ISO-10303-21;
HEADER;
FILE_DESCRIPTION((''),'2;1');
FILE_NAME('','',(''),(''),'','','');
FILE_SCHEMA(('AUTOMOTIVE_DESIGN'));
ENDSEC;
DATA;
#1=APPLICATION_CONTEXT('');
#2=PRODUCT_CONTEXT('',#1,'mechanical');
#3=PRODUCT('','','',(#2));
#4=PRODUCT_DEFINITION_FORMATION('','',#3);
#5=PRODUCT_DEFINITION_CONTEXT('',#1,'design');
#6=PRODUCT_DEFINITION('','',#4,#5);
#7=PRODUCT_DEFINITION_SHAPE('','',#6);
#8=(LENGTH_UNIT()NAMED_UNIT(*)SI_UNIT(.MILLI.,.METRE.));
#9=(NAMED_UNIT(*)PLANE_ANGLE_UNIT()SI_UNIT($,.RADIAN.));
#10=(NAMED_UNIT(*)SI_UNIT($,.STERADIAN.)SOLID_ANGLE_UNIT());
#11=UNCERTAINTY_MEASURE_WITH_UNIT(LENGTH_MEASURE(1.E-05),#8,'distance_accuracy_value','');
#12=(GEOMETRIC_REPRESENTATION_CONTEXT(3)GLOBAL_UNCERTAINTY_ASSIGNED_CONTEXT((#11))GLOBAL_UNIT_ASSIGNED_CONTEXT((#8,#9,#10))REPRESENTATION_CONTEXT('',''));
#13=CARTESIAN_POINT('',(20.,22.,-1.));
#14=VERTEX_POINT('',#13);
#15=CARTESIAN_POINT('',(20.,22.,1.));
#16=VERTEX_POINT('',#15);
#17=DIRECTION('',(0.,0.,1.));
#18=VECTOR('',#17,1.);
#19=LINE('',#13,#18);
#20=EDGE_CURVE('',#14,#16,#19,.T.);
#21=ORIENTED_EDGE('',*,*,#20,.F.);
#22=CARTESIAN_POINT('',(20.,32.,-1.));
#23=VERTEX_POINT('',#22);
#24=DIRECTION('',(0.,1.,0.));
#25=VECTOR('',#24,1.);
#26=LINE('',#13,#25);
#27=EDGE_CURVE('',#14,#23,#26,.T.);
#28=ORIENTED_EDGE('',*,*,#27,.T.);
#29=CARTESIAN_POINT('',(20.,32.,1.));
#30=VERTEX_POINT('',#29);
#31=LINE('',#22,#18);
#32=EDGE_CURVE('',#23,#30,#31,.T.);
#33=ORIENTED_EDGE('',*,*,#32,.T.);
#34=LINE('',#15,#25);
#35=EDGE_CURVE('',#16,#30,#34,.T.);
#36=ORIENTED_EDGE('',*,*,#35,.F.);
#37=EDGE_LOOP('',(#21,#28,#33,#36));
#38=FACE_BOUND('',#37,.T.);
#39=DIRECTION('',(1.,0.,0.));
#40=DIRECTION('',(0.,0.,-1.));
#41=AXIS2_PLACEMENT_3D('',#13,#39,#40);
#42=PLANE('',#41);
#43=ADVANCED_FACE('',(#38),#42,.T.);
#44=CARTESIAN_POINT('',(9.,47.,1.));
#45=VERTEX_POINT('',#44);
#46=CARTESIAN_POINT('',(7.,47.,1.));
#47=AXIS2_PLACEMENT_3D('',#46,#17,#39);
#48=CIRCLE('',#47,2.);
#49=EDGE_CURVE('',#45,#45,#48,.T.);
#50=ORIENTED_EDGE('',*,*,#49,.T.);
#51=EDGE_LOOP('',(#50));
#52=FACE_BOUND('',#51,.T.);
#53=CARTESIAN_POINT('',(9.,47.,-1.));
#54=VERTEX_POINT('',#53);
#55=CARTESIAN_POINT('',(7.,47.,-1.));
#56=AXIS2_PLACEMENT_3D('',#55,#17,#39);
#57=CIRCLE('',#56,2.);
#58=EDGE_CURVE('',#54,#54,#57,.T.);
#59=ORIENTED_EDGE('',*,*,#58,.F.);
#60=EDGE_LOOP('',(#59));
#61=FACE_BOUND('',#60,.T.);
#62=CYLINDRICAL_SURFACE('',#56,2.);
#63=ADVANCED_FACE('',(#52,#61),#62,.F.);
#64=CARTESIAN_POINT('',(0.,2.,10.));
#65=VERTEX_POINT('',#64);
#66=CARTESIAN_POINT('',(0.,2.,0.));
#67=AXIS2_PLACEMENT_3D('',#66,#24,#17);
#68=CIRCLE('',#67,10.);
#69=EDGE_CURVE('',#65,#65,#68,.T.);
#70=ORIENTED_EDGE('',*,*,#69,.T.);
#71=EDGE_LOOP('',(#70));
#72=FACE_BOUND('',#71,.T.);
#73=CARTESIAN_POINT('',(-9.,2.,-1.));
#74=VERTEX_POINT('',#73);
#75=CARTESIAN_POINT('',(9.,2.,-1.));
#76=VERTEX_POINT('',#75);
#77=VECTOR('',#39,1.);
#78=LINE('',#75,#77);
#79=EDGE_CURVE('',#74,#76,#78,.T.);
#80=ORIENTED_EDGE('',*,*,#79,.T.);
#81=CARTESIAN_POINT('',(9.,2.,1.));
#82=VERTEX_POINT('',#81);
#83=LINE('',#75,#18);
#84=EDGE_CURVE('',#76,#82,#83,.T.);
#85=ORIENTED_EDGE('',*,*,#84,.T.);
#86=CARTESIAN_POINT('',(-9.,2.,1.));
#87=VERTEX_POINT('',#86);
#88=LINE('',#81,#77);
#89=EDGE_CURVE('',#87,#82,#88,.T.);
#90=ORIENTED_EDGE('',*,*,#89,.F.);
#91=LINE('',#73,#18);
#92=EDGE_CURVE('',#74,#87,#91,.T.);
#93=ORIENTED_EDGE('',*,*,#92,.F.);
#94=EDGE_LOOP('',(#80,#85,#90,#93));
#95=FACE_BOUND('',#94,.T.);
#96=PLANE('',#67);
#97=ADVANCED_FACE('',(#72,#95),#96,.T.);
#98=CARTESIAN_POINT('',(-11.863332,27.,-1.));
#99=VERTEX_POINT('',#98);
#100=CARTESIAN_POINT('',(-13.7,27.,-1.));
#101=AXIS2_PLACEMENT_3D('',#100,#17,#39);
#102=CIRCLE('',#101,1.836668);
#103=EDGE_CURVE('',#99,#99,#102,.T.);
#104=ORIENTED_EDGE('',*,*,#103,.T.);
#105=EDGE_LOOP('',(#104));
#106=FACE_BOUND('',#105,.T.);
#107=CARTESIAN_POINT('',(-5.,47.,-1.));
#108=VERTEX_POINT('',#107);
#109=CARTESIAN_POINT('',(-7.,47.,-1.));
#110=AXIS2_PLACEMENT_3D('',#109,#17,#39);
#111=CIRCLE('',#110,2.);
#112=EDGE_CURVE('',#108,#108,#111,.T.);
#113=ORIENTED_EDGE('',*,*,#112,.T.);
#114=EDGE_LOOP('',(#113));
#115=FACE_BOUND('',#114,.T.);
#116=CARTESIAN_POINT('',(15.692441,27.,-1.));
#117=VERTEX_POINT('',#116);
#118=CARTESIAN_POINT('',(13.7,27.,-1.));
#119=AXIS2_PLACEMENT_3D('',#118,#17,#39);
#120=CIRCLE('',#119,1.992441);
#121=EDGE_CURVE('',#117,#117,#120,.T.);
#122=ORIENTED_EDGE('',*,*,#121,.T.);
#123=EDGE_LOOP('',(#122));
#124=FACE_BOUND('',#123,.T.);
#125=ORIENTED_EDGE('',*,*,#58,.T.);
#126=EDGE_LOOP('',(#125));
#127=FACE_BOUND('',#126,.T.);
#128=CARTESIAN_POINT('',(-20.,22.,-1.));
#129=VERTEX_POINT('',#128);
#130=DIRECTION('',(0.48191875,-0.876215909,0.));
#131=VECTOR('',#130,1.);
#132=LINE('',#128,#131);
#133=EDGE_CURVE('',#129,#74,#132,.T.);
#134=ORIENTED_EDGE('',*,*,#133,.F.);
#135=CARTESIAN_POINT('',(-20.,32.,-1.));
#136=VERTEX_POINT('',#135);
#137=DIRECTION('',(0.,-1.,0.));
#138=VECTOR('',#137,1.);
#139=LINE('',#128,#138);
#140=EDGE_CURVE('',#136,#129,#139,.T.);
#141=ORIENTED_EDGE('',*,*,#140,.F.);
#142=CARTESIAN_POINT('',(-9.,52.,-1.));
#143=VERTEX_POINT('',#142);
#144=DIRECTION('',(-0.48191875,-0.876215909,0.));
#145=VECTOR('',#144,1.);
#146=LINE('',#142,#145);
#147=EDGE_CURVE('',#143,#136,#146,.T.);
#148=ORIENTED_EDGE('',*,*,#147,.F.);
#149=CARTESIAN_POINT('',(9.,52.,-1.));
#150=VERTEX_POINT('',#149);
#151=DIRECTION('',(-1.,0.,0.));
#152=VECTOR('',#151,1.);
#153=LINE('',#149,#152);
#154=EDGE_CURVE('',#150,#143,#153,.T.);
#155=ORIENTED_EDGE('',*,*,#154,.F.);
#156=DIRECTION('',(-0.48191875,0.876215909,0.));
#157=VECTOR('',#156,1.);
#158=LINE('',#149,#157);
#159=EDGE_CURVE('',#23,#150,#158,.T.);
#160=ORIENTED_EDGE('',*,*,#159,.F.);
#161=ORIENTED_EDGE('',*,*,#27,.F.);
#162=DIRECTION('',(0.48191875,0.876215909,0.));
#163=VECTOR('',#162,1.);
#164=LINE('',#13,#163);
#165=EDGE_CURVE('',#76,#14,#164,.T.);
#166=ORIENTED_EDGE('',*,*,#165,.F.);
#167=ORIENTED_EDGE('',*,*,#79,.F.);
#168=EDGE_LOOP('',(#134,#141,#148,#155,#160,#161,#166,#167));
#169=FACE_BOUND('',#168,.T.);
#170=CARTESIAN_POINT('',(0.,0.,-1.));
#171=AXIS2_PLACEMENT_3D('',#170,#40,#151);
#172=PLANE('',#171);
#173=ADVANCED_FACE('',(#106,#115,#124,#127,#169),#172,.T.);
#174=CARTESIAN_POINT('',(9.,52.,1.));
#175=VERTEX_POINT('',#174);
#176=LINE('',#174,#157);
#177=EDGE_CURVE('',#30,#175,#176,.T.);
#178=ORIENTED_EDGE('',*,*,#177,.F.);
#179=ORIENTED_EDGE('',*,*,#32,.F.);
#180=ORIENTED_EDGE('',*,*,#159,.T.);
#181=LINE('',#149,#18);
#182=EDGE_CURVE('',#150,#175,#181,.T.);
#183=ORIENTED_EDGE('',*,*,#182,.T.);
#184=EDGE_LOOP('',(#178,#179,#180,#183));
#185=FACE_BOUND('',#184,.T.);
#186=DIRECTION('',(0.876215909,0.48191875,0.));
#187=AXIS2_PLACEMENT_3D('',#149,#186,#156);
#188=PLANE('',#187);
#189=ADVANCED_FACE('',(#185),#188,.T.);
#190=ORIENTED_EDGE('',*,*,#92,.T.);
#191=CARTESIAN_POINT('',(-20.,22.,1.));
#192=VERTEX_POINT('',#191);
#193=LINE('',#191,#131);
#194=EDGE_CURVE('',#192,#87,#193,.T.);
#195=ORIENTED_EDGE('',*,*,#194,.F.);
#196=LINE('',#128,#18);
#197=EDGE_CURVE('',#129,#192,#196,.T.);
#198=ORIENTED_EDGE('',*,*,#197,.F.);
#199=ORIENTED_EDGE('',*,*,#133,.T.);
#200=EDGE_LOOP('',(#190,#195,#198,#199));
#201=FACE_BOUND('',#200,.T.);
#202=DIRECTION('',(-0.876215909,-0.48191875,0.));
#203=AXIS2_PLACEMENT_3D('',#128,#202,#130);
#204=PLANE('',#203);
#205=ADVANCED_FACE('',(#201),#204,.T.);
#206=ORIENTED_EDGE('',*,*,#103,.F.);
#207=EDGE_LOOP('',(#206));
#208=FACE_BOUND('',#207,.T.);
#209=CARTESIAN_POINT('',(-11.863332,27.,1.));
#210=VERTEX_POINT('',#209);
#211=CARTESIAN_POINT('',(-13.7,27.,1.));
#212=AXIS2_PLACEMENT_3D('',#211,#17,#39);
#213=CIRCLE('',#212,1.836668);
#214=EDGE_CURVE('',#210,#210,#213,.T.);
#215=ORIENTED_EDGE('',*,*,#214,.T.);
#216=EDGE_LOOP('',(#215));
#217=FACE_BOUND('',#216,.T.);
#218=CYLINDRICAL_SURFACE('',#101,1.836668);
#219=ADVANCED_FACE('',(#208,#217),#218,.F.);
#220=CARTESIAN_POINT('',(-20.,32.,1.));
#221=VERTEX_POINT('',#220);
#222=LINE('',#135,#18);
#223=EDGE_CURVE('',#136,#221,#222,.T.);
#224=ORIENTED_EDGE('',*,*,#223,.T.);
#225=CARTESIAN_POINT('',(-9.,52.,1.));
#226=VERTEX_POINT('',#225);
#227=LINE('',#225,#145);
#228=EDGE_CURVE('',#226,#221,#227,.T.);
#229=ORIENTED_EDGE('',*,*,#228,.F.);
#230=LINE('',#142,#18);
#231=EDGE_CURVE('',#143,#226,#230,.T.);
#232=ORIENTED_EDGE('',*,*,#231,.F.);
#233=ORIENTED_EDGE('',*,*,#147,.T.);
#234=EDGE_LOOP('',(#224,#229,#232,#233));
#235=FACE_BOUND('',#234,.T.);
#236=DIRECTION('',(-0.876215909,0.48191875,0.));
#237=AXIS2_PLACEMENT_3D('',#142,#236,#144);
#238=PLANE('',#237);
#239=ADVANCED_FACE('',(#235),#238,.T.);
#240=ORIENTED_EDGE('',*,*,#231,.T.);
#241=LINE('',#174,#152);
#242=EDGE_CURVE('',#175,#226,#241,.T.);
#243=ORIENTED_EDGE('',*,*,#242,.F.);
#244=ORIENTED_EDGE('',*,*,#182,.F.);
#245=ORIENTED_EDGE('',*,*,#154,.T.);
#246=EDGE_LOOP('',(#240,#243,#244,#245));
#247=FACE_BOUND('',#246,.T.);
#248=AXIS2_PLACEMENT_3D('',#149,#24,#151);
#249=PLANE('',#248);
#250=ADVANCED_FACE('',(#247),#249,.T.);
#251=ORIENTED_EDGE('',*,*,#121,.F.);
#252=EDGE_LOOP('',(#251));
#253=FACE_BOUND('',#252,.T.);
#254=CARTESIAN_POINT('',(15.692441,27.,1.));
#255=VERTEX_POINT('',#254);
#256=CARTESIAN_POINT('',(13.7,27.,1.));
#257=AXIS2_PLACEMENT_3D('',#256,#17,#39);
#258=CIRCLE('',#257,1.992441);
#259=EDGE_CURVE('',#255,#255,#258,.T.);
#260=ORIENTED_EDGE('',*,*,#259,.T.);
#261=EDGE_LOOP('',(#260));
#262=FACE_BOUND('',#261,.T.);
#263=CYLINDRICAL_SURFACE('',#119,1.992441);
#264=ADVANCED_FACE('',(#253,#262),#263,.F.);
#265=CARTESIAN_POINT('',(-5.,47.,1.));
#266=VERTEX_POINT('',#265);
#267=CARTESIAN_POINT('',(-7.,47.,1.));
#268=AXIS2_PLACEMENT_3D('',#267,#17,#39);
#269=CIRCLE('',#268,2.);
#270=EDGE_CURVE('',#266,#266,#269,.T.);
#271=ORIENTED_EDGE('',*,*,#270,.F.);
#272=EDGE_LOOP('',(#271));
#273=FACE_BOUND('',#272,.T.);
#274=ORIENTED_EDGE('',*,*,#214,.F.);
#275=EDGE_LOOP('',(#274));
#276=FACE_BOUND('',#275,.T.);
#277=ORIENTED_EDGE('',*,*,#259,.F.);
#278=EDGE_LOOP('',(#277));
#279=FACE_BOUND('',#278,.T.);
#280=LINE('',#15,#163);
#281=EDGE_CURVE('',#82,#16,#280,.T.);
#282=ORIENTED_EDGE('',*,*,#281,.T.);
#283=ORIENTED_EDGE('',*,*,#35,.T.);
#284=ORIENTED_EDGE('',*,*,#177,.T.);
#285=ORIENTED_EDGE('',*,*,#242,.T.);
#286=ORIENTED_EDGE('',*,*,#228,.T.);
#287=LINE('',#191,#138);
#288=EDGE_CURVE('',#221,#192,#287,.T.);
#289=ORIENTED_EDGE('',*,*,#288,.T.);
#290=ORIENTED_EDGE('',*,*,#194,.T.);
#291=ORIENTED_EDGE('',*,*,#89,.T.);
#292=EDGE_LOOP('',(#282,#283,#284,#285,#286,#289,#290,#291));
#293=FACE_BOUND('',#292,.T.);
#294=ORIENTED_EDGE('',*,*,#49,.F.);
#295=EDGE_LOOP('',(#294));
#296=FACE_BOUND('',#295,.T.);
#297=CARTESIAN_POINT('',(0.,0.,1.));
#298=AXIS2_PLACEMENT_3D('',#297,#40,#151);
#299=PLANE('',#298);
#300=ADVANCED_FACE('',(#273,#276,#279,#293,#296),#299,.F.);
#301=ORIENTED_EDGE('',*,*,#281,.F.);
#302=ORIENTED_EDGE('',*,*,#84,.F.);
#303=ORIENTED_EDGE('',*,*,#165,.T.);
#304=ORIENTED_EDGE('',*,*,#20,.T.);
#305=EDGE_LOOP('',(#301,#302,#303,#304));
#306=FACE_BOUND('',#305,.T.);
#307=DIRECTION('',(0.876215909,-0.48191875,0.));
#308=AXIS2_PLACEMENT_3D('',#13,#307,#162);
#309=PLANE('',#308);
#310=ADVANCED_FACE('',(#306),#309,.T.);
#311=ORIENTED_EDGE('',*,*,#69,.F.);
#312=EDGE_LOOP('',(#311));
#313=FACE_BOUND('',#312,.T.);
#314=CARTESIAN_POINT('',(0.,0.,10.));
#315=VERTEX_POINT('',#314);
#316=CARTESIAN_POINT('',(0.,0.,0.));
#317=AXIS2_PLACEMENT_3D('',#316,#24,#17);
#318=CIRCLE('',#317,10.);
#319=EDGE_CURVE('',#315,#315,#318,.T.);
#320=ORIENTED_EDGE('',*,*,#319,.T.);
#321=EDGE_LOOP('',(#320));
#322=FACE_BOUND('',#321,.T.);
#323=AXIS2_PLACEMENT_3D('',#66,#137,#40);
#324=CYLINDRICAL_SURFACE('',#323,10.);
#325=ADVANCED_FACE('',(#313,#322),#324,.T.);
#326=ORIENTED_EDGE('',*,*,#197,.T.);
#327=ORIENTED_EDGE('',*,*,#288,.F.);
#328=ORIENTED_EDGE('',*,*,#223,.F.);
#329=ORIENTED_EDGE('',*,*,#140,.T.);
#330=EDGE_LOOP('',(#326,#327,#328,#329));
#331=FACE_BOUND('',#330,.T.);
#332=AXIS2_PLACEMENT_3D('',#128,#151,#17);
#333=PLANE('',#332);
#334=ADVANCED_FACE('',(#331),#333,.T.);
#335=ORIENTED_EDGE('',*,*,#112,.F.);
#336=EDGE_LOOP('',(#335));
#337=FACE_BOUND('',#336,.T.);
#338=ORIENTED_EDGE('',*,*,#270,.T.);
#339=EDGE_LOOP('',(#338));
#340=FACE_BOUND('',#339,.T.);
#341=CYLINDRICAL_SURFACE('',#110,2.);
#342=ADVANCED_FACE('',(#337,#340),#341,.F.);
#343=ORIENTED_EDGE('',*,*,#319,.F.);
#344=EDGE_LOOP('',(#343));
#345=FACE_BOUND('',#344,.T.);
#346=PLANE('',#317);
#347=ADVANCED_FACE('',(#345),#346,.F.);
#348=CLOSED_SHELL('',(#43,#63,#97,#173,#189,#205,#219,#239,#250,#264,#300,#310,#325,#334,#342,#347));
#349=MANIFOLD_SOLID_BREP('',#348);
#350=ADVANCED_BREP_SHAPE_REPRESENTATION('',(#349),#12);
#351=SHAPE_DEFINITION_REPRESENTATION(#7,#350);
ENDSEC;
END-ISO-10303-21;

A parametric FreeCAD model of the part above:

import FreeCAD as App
import Part
import Sketcher
from FreeCAD import Vector
Q = App.Units.Quantity


def add_polygon(sketch, points):
    """Adds a closed chain of lines whose ends are joined by coincident constraints."""
    first, n = sketch.GeometryCount, len(points)
    for a, b in zip(points, points[1:] + points[:1]):
        sketch.addGeometry(Part.LineSegment(App.Vector(*a, 0), App.Vector(*b, 0)), False)
    for i in range(n):
        sketch.addConstraint(Sketcher.Constraint("Coincident", first + i, 2, first + (i + 1) % n, 1))

doc = App.newDocument("Part")
params = doc.addObject("Spreadsheet::Sheet", "Params")
for row, (alias, value) in enumerate([
    ("sketch1_diameter", "20 mm"),
    ("pad1_length", "2 mm"),
    ("sketch2_diameter", "4 mm"),
    ("sketch2_width", "18 mm"),
    ("sketch2_height", "10 mm"),
    ("pad2_length", "1 mm"),
    ("pad2_length2", "1 mm"),
], start=1):
    params.set(f"A{row}", alias)
    params.set(f"B{row}", "=" + value)
    params.setAlias(f"B{row}", alias)

body = doc.addObject("PartDesign::Body", "Body")

# Sketch on XZ plane
sketch1 = body.newObject("Sketcher::SketchObject", "Sketch")
sketch1.AttachmentSupport = (doc.getObject("XZ_Plane"), [""])
sketch1.MapMode = "FlatFace"
sketch1.addGeometry(Part.Circle(Vector(0, 0, 0), Vector(0, 0, 1), 10), False)
sketch1.addConstraint([
    Sketcher.Constraint("Coincident", 0, 3, -1, 1),
    Sketcher.Constraint("Diameter", 0, Q("20 mm")),
])
sketch1.setExpression("Constraints[1]", "Params.sketch1_diameter")
pad1 = body.newObject("PartDesign::Pad", "Pad")
pad1.Profile = sketch1
pad1.setExpression("Length", "Params.pad1_length")
pad1.Reversed = True

# Sketch on XY plane
sketch2 = body.newObject("Sketcher::SketchObject", "Sketch001")
sketch2.AttachmentSupport = (doc.getObject("XY_Plane"), [""])
sketch2.MapMode = "FlatFace"
add_polygon(sketch2, [(-9, 2), (9, 2), (20, 22), (20, 32), (9, 52), (-9, 52), (-20, 32), (-20, 22)])  # lines 0-7
sketch2.addGeometry(Part.Circle(Vector(13.7, 27, 0), Vector(0, 0, 1), 2), False)  # 8
sketch2.addGeometry(Part.Circle(Vector(-13.7, 27, 0), Vector(0, 0, 1), 1.8), False)  # 9
sketch2.addGeometry(Part.Circle(Vector(7, 47, 0), Vector(0, 0, 1), 2), False)  # 10
sketch2.addGeometry(Part.Circle(Vector(-7, 47, 0), Vector(0, 0, 1), 2), False)  # 11
sketch2.addConstraint([
    Sketcher.Constraint("Horizontal", 0),
    Sketcher.Constraint("Vertical", 2),
    Sketcher.Constraint("Horizontal", 4),
    Sketcher.Constraint("Vertical", 6),
    Sketcher.Constraint("Equal", 10, 11),
    Sketcher.Constraint("Symmetric", 8, 3, 9, 3, -2),
    Sketcher.Constraint("Symmetric", 10, 3, 11, 3, -2),
    Sketcher.Constraint("Symmetric", 2, 2, 5, 2, -2),
    Sketcher.Constraint("Parallel", 1, 5),
    Sketcher.Constraint("Parallel", 3, 7),
    Sketcher.Constraint("Horizontal", 1, 2, 6, 2),
    Sketcher.Constraint("Vertical", 0, 2, 3, 2),
    Sketcher.Constraint("Vertical", 4, 2, 7, 2),
    Sketcher.Constraint("Diameter", 10, Q("4 mm")),
    Sketcher.Constraint("DistanceX", 0, 1, 0, 2, Q("18 mm")),
    Sketcher.Constraint("DistanceY", 2, 1, 2, 2, Q("10 mm")),
    Sketcher.Constraint("DistanceY", -1, 1, 8, 3, Q("27 mm")),
    Sketcher.Constraint("DistanceX", -1, 1, 10, 3, Q("7 mm")),
    Sketcher.Constraint("DistanceY", -1, 1, 10, 3, Q("47 mm")),
    Sketcher.Constraint("DistanceY", -1, 1, 0, 2, Q("2 mm")),
    Sketcher.Constraint("DistanceX", -1, 1, 1, 2, Q("20 mm")),
    Sketcher.Constraint("DistanceY", -1, 1, 1, 2, Q("22 mm")),
    Sketcher.Constraint("DistanceX", -1, 1, 8, 3, Q("13.7 mm")),
    Sketcher.Constraint("Diameter", 8, Q("3.984881 mm")),
    Sketcher.Constraint("Diameter", 9, Q("3.673335 mm")),
])
sketch2.setExpression("Constraints[21]", "Params.sketch2_diameter")
sketch2.setExpression("Constraints[22]", "Params.sketch2_width")
sketch2.setExpression("Constraints[23]", "Params.sketch2_height")
pad2 = body.newObject("PartDesign::Pad", "Pad001")
pad2.Profile = sketch2
pad2.Type = "TwoLengths"
pad2.setExpression("Length", "Params.pad2_length")
pad2.setExpression("Length2", "Params.pad2_length2")

doc.recompute()
